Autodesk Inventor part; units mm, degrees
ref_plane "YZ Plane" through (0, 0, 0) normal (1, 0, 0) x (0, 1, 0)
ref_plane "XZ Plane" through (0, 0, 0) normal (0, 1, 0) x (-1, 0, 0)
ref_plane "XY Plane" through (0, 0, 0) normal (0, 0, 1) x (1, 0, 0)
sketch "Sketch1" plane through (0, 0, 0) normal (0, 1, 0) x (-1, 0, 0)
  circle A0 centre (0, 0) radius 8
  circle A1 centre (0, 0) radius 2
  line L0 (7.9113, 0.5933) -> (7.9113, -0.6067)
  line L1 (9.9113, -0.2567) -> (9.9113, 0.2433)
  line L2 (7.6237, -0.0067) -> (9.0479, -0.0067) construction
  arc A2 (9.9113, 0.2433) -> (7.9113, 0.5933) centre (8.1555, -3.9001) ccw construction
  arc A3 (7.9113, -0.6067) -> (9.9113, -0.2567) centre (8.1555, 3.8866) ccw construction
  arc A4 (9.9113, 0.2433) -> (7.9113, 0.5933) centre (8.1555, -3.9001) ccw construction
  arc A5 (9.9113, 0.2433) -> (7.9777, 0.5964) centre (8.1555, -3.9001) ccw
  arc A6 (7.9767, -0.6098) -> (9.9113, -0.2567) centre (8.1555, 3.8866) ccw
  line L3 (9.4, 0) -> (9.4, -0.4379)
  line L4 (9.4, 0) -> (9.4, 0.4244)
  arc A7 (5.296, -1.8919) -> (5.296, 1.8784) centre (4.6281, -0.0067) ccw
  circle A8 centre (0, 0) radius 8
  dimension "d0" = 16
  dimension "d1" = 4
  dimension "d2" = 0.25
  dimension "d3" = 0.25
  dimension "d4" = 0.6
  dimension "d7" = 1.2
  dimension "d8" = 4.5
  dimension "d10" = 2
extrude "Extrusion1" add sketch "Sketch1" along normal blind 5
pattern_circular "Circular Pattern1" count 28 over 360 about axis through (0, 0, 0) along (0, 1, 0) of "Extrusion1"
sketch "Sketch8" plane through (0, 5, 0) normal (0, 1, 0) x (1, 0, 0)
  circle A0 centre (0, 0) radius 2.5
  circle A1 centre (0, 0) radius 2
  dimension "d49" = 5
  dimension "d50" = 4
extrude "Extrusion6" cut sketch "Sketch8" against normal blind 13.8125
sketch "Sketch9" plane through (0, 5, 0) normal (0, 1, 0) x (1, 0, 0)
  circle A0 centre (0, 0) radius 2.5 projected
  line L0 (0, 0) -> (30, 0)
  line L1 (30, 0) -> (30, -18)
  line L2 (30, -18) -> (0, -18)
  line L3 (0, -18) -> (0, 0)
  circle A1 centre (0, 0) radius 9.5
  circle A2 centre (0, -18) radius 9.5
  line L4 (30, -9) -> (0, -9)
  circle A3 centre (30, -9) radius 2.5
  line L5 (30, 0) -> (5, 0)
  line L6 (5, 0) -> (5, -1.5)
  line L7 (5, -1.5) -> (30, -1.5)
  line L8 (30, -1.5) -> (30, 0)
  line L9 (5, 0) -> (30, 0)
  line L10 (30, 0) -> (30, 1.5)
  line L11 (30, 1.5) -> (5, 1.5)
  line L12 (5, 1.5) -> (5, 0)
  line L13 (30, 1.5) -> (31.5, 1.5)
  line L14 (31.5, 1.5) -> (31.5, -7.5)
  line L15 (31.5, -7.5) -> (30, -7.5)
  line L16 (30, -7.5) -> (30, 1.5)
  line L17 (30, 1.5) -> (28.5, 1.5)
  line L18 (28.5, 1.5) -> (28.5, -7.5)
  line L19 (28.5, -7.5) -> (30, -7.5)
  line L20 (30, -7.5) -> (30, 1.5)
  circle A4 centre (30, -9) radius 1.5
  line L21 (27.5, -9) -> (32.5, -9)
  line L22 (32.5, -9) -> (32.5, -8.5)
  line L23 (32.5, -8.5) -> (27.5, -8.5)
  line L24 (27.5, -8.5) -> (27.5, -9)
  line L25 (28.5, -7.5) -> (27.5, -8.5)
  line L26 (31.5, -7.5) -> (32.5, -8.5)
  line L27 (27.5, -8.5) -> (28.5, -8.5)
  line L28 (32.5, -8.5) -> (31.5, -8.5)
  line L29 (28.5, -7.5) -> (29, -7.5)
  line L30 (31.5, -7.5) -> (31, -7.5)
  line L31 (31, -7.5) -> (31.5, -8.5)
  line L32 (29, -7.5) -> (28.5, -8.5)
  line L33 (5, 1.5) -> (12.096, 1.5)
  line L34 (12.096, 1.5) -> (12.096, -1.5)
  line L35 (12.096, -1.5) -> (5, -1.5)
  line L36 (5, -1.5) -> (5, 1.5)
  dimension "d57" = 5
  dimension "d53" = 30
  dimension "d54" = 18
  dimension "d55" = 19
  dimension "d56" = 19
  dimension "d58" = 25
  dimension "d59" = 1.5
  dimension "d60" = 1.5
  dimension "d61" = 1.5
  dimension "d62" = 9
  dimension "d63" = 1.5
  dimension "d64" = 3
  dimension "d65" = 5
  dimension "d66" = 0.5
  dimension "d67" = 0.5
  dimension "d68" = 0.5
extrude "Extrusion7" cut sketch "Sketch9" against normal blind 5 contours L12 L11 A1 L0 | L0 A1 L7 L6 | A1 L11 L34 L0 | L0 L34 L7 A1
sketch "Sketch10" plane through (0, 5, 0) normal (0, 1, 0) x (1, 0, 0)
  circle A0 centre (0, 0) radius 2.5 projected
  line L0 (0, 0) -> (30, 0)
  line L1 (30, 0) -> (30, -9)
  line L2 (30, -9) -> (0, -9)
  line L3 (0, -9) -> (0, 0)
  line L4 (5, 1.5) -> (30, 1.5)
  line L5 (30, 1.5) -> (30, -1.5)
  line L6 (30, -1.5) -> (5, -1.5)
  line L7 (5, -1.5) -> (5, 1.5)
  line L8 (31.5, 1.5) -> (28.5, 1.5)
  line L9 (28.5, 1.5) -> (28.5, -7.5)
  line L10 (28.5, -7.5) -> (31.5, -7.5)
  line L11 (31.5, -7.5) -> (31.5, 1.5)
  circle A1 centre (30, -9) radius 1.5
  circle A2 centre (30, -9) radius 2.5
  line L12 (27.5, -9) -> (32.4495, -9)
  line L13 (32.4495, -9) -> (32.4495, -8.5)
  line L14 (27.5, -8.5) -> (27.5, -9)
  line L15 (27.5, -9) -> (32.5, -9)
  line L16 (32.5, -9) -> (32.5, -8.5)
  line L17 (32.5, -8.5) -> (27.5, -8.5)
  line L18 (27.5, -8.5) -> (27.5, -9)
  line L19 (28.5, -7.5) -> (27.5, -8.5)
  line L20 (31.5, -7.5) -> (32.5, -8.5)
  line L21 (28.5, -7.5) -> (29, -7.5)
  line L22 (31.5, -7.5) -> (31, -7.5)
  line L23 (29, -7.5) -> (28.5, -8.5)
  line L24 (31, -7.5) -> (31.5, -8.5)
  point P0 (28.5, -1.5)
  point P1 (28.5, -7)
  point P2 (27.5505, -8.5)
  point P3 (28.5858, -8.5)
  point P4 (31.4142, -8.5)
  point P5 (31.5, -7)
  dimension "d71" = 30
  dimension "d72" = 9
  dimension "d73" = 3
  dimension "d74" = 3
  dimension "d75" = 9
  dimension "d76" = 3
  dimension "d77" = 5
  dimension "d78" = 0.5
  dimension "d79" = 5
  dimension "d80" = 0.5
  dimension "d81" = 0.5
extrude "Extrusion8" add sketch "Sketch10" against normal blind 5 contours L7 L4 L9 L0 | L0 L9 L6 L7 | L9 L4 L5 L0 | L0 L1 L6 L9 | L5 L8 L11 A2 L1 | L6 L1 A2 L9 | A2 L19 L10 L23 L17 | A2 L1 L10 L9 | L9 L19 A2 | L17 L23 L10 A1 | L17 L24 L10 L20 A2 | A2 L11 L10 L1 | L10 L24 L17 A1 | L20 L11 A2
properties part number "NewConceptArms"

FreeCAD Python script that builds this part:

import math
import FreeCAD as App
import Part
import Sketcher

V = App.Vector
Q = App.Units.Quantity

doc = App.newDocument("Part")
body = doc.addObject("PartDesign::Body", "Body")

sketch1 = doc.addObject("Sketcher::SketchObject", "Sketch")
body.addObject(sketch1)
sketch1.AttachmentSupport = (doc.XZ_Plane, [""])
sketch1.MapMode = "FlatFace"
sketch1.addGeometry(Part.ArcOfCircle(Part.Circle(V(0, 0, 0), V(0, 0, 1), 8), math.radians(-175.628375), math.radians(175.724613)), False)
sketch1.addGeometry(Part.ArcOfCircle(Part.Circle(V(-8.1555, 3.8866, 0), V(0, 0, 1), 4.499954), math.radians(-112.9657), math.radians(-87.722825)), False)
sketch1.addGeometry(Part.LineSegment(V(-9.9113, -0.2567, 0), V(-9.9113, 0.2433, 0)), False)
sketch1.addGeometry(Part.ArcOfCircle(Part.Circle(V(-8.155813, -3.899053, 0), V(0, 0, 1), 4.49898), math.radians(87.731084), math.radians(112.966733)), False)
sketch1.addGeometry(Part.Circle(V(0, 0, 0), V(0, 0, 1), 2), False)
sketch1.addConstraint(Sketcher.Constraint("Coincident", 0, 1, 1, 2))
sketch1.addConstraint(Sketcher.Constraint("Coincident", 1, 1, 2, 1))
sketch1.addConstraint(Sketcher.Constraint("Coincident", 2, 2, 3, 2))
sketch1.addConstraint(Sketcher.Constraint("Coincident", 3, 1, 0, 2))
sketch1.addConstraint(Sketcher.Constraint("Vertical", 2))
sketch1.addConstraint(Sketcher.Constraint("Coincident", 0, 3, -1, 1))
sketch1.addConstraint(Sketcher.Constraint("Coincident", 4, 3, -1, 1))
sketch1.addConstraint(Sketcher.Constraint("Diameter", 4, Q("4 mm")))
sketch1.addConstraint(Sketcher.Constraint("Radius", 0, Q("8 mm")))
sketch1.addConstraint(Sketcher.Constraint("Radius", 1, Q("4.5 mm")))
sketch1.addConstraint(Sketcher.Constraint("DistanceY", 2, 1, 2, 2, Q("0.5 mm")))
sketch1.addConstraint(Sketcher.Constraint("Radius", 3, Q("4.499 mm")))
sketch1.addConstraint(Sketcher.Constraint("DistanceY", 3, 3, -1, 1, Q("3.899 mm")))
sketch1.addConstraint(Sketcher.Constraint("DistanceX", 3, 3, 0, 1, Q("0.179 mm")))
sketch1.addConstraint(Sketcher.Constraint("DistanceY", 0, 1, 2, 2, Q("0.853 mm")))
sketch1.addConstraint(Sketcher.Constraint("DistanceX", 3, 1, 0, 1, Q("0.001 mm")))
pad1 = doc.addObject("PartDesign::Pad", "Pad")
body.addObject(pad1)
pad1.Profile = sketch1
pad1.Length = 5
pad1.Reversed = True
doc.recompute()

polarpattern = doc.addObject("PartDesign::PolarPattern", "PolarPattern")
body.addObject(polarpattern)
polarpattern.Originals = [pad1]
polarpattern.Axis = (doc.Y_Axis, [""])
polarpattern.Angle = 360
polarpattern.Occurrences = 28
body.Tip = polarpattern

sketch2 = doc.addObject("Sketcher::SketchObject", "Sketch001")
body.addObject(sketch2)
sketch2.AttachmentSupport = (doc.XZ_Plane, [""])
sketch2.MapMode = "FlatFace"
sketch2.AttachmentOffset = App.Placement(V(0, 0, -5), App.Rotation())
sketch2.addGeometry(Part.Circle(V(0, 0, 0), V(0, 0, 1), 2.5), False)
sketch2.addGeometry(Part.Circle(V(0, 0, 0), V(0, 0, 1), 2), False)
sketch2.addConstraint(Sketcher.Constraint("Coincident", 0, 3, -1, 1))
sketch2.addConstraint(Sketcher.Constraint("Coincident", 1, 3, -1, 1))
sketch2.addConstraint(Sketcher.Constraint("Diameter", 0, Q("5 mm")))
sketch2.addConstraint(Sketcher.Constraint("Diameter", 1, Q("4 mm")))
pocket1 = doc.addObject("PartDesign::Pocket", "Pocket")
body.addObject(pocket1)
pocket1.Profile = sketch2
pocket1.Length = 13.8125
pocket1.Reversed = True

sketch3 = doc.addObject("Sketcher::SketchObject", "Sketch002")
body.addObject(sketch3)
sketch3.AttachmentSupport = (doc.XZ_Plane, [""])
sketch3.MapMode = "FlatFace"
sketch3.AttachmentOffset = App.Placement(V(0, 0, -5), App.Rotation())
sketch3.addGeometry(Part.LineSegment(V(5, -1.5, 0), V(5, 1.5, 0)), False)
sketch3.addGeometry(Part.LineSegment(V(5, 1.5, 0), V(12.096, 1.5, 0)), False)
sketch3.addGeometry(Part.LineSegment(V(12.096, 1.5, 0), V(12.096, -1.5, 0)), False)
sketch3.addGeometry(Part.LineSegment(V(12.096, -1.5, 0), V(5, -1.5, 0)), False)
sketch3.addConstraint(Sketcher.Constraint("Coincident", 0, 2, 1, 1))
sketch3.addConstraint(Sketcher.Constraint("Coincident", 1, 2, 2, 1))
sketch3.addConstraint(Sketcher.Constraint("Coincident", 2, 2, 3, 1))
sketch3.addConstraint(Sketcher.Constraint("Coincident", 3, 2, 0, 1))
sketch3.addConstraint(Sketcher.Constraint("Vertical", 0))
sketch3.addConstraint(Sketcher.Constraint("Horizontal", 1))
sketch3.addConstraint(Sketcher.Constraint("Vertical", 2))
sketch3.addConstraint(Sketcher.Constraint("Horizontal", 3))
sketch3.addConstraint(Sketcher.Constraint("DistanceY", 0, 1, 0, 2, Q("3 mm")))
sketch3.addConstraint(Sketcher.Constraint("DistanceX", -1, 1, 0, 2, Q("5 mm")))
sketch3.addConstraint(Sketcher.Constraint("DistanceY", -1, 1, 0, 2, Q("1.5 mm")))
sketch3.addConstraint(Sketcher.Constraint("DistanceX", 1, 1, 1, 2, Q("7.096 mm")))
pocket2 = doc.addObject("PartDesign::Pocket", "Pocket001")
body.addObject(pocket2)
pocket2.Profile = sketch3
pocket2.Length = 5
pocket2.Reversed = True

sketch4 = doc.addObject("Sketcher::SketchObject", "Sketch003")
body.addObject(sketch4)
sketch4.AttachmentSupport = (doc.XZ_Plane, [""])
sketch4.MapMode = "FlatFace"
sketch4.AttachmentOffset = App.Placement(V(0, 0, -5), App.Rotation())
sketch4.addGeometry(Part.LineSegment(V(5, -1.5, 0), V(5, 1.5, 0)), False)
sketch4.addGeometry(Part.LineSegment(V(5, 1.5, 0), V(28.5, 1.5, 0)), False)
sketch4.addGeometry(Part.LineSegment(V(28.5, 1.5, 0), V(28.5, 7, 0)), False)
sketch4.addGeometry(Part.ArcOfCircle(Part.Circle(V(30, 9, 0), V(0, 0, 1), 2.5), math.radians(-168.463041), math.radians(-126.869898)), False)
sketch4.addGeometry(Part.LineSegment(V(27.55051, 8.5, 0), V(28.585786, 8.5, 0)), False)
sketch4.addGeometry(Part.ArcOfCircle(Part.Circle(V(30, 9, 0), V(0, 0, 1), 1.5), math.radians(-160.528779), math.radians(-19.471221)), False)
sketch4.addGeometry(Part.LineSegment(V(31.414214, 8.5, 0), V(32.4495, 8.5, 0)), False)
sketch4.addGeometry(Part.ArcOfCircle(Part.Circle(V(30, 9, 0), V(0, 0, 1), 2.5), math.radians(-53.130102), math.radians(-11.536912)), False)
sketch4.addGeometry(Part.LineSegment(V(31.5, 7, 0), V(31.5, -1.5, 0)), False)
sketch4.addGeometry(Part.LineSegment(V(31.5, -1.5, 0), V(5, -1.5, 0)), False)
sketch4.addConstraint(Sketcher.Constraint("Coincident", 0, 2, 1, 1))
sketch4.addConstraint(Sketcher.Constraint("Coincident", 1, 2, 2, 1))
sketch4.addConstraint(Sketcher.Constraint("Coincident", 2, 2, 3, 2))
sketch4.addConstraint(Sketcher.Constraint("Coincident", 3, 1, 4, 1))
sketch4.addConstraint(Sketcher.Constraint("Coincident", 4, 2, 5, 1))
sketch4.addConstraint(Sketcher.Constraint("Coincident", 5, 2, 6, 1))
sketch4.addConstraint(Sketcher.Constraint("Coincident", 6, 2, 7, 2))
sketch4.addConstraint(Sketcher.Constraint("Coincident", 7, 1, 8, 1))
sketch4.addConstraint(Sketcher.Constraint("Coincident", 8, 2, 9, 1))
sketch4.addConstraint(Sketcher.Constraint("Coincident", 9, 2, 0, 1))
sketch4.addConstraint(Sketcher.Constraint("Vertical", 0))
sketch4.addConstraint(Sketcher.Constraint("Horizontal", 1))
sketch4.addConstraint(Sketcher.Constraint("Vertical", 2))
sketch4.addConstraint(Sketcher.Constraint("Horizontal", 4))
sketch4.addConstraint(Sketcher.Constraint("Horizontal", 6))
sketch4.addConstraint(Sketcher.Constraint("Vertical", 8))
sketch4.addConstraint(Sketcher.Constraint("Horizontal", 9))
sketch4.addConstraint(Sketcher.Constraint("Coincident", 5, 3, 3, 3))
sketch4.addConstraint(Sketcher.Constraint("Coincident", 7, 3, 3, 3))
sketch4.addConstraint(Sketcher.Constraint("Equal", 3, 7))
sketch4.addConstraint(Sketcher.Constraint("Horizontal", 4, 2, 5, 2))
sketch4.addConstraint(Sketcher.Constraint("Horizontal", 2, 2, 7, 1))
sketch4.addConstraint(Sketcher.Constraint("Radius", 3, Q("2.5 mm")))
sketch4.addConstraint(Sketcher.Constraint("Radius", 5, Q("1.5 mm")))
sketch4.addConstraint(Sketcher.Constraint("DistanceY", 0, 1, 0, 2, Q("3 mm")))
sketch4.addConstraint(Sketcher.Constraint("DistanceX", -1, 1, 3, 3, Q("30 mm")))
sketch4.addConstraint(Sketcher.Constraint("DistanceY", -1, 1, 3, 3, Q("9 mm")))
sketch4.addConstraint(Sketcher.Constraint("DistanceX", -1, 1, 0, 2, Q("5 mm")))
sketch4.addConstraint(Sketcher.Constraint("DistanceX", 1, 2, 8, 2, Q("3 mm")))
sketch4.addConstraint(Sketcher.Constraint("DistanceY", 3, 1, 3, 3, Q("0.5 mm")))
sketch4.addConstraint(Sketcher.Constraint("DistanceY", 2, 1, 2, 2, Q("5.5 mm")))
pad2 = doc.addObject("PartDesign::Pad", "Pad001")
body.addObject(pad2)
pad2.Profile = sketch4
pad2.Length = 5

doc.recompute()
